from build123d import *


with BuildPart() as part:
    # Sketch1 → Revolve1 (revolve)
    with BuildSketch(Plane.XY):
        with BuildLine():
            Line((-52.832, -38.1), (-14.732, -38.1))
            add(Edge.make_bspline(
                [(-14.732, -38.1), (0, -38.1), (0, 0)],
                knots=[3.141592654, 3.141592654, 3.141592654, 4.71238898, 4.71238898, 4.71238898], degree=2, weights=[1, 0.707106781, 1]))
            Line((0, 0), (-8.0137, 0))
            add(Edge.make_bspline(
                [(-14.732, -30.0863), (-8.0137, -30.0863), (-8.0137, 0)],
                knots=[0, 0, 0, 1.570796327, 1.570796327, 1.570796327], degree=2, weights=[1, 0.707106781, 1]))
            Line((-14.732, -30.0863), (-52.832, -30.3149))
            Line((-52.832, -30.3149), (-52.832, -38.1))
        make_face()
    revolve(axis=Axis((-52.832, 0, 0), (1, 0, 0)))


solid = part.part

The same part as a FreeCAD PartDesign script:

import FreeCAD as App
import Part
import Sketcher

V = App.Vector
Q = App.Units.Quantity

doc = App.newDocument("Part")
body = doc.addObject("PartDesign::Body", "Body")

sketch1 = body.newObject("Sketcher::SketchObject", "Sketch")
sketch1.AttachmentSupport = (doc.getObject("XY_Plane"), [""])
sketch1.MapMode = "FlatFace"
sketch1.addGeometry(Part.LineSegment(V(-52.832, -38.1, 0), V(-14.732, -38.1, 0)), False)
sketch1.addGeometry(Part.BSplineCurve([V(-14.732, -38.1, 0), V(0, -38.1, 0), V(0, 0, 0)], [3, 3], [3.141592654, 4.71238898], False, 2, [1, 0.707106781, 1], False), False)
sketch1.addGeometry(Part.LineSegment(V(0, 0, 0), V(-8.0137, 0, 0)), False)
sketch1.addGeometry(Part.BSplineCurve([V(-14.732, -30.0863, 0), V(-8.0137, -30.0863, 0), V(-8.0137, 0, 0)], [3, 3], [0, 1.570796327], False, 2, [1, 0.707106781, 1], False), False)
sketch1.addGeometry(Part.LineSegment(V(-14.732, -30.0863, 0), V(-52.832, -30.3149, 0)), False)
sketch1.addGeometry(Part.LineSegment(V(-52.832, -30.3149, 0), V(-52.832, -38.1, 0)), False)
sketch1.addConstraint(Sketcher.Constraint("Block", 1))
sketch1.addConstraint(Sketcher.Constraint("Block", 3))
sketch1.addConstraint(Sketcher.Constraint("Coincident", 0, 2, 1, 1))
sketch1.addConstraint(Sketcher.Constraint("Coincident", 1, 2, 2, 1))
sketch1.addConstraint(Sketcher.Constraint("Coincident", 2, 2, 3, 2))
sketch1.addConstraint(Sketcher.Constraint("Coincident", 3, 1, 4, 1))
sketch1.addConstraint(Sketcher.Constraint("Coincident", 4, 2, 5, 1))
sketch1.addConstraint(Sketcher.Constraint("Coincident", 5, 2, 0, 1))
sketch1.addConstraint(Sketcher.Constraint("Horizontal", 0))
sketch1.addConstraint(Sketcher.Constraint("Vertical", 5))
sketch1.addConstraint(Sketcher.Constraint("DistanceX", 0, 1, 0, 2, Q("1.5 in")))
sketch1.addConstraint(Sketcher.Constraint("DistanceY", 5, 2, 5, 1, Q("0.3065 in")))
revolution = body.newObject("PartDesign::Revolution", "Revolution")
revolution.Profile = sketch1
revolution.ReferenceAxis = (sketch1, ["H_Axis"])
revolution.Angle = 360

doc.recompute()
